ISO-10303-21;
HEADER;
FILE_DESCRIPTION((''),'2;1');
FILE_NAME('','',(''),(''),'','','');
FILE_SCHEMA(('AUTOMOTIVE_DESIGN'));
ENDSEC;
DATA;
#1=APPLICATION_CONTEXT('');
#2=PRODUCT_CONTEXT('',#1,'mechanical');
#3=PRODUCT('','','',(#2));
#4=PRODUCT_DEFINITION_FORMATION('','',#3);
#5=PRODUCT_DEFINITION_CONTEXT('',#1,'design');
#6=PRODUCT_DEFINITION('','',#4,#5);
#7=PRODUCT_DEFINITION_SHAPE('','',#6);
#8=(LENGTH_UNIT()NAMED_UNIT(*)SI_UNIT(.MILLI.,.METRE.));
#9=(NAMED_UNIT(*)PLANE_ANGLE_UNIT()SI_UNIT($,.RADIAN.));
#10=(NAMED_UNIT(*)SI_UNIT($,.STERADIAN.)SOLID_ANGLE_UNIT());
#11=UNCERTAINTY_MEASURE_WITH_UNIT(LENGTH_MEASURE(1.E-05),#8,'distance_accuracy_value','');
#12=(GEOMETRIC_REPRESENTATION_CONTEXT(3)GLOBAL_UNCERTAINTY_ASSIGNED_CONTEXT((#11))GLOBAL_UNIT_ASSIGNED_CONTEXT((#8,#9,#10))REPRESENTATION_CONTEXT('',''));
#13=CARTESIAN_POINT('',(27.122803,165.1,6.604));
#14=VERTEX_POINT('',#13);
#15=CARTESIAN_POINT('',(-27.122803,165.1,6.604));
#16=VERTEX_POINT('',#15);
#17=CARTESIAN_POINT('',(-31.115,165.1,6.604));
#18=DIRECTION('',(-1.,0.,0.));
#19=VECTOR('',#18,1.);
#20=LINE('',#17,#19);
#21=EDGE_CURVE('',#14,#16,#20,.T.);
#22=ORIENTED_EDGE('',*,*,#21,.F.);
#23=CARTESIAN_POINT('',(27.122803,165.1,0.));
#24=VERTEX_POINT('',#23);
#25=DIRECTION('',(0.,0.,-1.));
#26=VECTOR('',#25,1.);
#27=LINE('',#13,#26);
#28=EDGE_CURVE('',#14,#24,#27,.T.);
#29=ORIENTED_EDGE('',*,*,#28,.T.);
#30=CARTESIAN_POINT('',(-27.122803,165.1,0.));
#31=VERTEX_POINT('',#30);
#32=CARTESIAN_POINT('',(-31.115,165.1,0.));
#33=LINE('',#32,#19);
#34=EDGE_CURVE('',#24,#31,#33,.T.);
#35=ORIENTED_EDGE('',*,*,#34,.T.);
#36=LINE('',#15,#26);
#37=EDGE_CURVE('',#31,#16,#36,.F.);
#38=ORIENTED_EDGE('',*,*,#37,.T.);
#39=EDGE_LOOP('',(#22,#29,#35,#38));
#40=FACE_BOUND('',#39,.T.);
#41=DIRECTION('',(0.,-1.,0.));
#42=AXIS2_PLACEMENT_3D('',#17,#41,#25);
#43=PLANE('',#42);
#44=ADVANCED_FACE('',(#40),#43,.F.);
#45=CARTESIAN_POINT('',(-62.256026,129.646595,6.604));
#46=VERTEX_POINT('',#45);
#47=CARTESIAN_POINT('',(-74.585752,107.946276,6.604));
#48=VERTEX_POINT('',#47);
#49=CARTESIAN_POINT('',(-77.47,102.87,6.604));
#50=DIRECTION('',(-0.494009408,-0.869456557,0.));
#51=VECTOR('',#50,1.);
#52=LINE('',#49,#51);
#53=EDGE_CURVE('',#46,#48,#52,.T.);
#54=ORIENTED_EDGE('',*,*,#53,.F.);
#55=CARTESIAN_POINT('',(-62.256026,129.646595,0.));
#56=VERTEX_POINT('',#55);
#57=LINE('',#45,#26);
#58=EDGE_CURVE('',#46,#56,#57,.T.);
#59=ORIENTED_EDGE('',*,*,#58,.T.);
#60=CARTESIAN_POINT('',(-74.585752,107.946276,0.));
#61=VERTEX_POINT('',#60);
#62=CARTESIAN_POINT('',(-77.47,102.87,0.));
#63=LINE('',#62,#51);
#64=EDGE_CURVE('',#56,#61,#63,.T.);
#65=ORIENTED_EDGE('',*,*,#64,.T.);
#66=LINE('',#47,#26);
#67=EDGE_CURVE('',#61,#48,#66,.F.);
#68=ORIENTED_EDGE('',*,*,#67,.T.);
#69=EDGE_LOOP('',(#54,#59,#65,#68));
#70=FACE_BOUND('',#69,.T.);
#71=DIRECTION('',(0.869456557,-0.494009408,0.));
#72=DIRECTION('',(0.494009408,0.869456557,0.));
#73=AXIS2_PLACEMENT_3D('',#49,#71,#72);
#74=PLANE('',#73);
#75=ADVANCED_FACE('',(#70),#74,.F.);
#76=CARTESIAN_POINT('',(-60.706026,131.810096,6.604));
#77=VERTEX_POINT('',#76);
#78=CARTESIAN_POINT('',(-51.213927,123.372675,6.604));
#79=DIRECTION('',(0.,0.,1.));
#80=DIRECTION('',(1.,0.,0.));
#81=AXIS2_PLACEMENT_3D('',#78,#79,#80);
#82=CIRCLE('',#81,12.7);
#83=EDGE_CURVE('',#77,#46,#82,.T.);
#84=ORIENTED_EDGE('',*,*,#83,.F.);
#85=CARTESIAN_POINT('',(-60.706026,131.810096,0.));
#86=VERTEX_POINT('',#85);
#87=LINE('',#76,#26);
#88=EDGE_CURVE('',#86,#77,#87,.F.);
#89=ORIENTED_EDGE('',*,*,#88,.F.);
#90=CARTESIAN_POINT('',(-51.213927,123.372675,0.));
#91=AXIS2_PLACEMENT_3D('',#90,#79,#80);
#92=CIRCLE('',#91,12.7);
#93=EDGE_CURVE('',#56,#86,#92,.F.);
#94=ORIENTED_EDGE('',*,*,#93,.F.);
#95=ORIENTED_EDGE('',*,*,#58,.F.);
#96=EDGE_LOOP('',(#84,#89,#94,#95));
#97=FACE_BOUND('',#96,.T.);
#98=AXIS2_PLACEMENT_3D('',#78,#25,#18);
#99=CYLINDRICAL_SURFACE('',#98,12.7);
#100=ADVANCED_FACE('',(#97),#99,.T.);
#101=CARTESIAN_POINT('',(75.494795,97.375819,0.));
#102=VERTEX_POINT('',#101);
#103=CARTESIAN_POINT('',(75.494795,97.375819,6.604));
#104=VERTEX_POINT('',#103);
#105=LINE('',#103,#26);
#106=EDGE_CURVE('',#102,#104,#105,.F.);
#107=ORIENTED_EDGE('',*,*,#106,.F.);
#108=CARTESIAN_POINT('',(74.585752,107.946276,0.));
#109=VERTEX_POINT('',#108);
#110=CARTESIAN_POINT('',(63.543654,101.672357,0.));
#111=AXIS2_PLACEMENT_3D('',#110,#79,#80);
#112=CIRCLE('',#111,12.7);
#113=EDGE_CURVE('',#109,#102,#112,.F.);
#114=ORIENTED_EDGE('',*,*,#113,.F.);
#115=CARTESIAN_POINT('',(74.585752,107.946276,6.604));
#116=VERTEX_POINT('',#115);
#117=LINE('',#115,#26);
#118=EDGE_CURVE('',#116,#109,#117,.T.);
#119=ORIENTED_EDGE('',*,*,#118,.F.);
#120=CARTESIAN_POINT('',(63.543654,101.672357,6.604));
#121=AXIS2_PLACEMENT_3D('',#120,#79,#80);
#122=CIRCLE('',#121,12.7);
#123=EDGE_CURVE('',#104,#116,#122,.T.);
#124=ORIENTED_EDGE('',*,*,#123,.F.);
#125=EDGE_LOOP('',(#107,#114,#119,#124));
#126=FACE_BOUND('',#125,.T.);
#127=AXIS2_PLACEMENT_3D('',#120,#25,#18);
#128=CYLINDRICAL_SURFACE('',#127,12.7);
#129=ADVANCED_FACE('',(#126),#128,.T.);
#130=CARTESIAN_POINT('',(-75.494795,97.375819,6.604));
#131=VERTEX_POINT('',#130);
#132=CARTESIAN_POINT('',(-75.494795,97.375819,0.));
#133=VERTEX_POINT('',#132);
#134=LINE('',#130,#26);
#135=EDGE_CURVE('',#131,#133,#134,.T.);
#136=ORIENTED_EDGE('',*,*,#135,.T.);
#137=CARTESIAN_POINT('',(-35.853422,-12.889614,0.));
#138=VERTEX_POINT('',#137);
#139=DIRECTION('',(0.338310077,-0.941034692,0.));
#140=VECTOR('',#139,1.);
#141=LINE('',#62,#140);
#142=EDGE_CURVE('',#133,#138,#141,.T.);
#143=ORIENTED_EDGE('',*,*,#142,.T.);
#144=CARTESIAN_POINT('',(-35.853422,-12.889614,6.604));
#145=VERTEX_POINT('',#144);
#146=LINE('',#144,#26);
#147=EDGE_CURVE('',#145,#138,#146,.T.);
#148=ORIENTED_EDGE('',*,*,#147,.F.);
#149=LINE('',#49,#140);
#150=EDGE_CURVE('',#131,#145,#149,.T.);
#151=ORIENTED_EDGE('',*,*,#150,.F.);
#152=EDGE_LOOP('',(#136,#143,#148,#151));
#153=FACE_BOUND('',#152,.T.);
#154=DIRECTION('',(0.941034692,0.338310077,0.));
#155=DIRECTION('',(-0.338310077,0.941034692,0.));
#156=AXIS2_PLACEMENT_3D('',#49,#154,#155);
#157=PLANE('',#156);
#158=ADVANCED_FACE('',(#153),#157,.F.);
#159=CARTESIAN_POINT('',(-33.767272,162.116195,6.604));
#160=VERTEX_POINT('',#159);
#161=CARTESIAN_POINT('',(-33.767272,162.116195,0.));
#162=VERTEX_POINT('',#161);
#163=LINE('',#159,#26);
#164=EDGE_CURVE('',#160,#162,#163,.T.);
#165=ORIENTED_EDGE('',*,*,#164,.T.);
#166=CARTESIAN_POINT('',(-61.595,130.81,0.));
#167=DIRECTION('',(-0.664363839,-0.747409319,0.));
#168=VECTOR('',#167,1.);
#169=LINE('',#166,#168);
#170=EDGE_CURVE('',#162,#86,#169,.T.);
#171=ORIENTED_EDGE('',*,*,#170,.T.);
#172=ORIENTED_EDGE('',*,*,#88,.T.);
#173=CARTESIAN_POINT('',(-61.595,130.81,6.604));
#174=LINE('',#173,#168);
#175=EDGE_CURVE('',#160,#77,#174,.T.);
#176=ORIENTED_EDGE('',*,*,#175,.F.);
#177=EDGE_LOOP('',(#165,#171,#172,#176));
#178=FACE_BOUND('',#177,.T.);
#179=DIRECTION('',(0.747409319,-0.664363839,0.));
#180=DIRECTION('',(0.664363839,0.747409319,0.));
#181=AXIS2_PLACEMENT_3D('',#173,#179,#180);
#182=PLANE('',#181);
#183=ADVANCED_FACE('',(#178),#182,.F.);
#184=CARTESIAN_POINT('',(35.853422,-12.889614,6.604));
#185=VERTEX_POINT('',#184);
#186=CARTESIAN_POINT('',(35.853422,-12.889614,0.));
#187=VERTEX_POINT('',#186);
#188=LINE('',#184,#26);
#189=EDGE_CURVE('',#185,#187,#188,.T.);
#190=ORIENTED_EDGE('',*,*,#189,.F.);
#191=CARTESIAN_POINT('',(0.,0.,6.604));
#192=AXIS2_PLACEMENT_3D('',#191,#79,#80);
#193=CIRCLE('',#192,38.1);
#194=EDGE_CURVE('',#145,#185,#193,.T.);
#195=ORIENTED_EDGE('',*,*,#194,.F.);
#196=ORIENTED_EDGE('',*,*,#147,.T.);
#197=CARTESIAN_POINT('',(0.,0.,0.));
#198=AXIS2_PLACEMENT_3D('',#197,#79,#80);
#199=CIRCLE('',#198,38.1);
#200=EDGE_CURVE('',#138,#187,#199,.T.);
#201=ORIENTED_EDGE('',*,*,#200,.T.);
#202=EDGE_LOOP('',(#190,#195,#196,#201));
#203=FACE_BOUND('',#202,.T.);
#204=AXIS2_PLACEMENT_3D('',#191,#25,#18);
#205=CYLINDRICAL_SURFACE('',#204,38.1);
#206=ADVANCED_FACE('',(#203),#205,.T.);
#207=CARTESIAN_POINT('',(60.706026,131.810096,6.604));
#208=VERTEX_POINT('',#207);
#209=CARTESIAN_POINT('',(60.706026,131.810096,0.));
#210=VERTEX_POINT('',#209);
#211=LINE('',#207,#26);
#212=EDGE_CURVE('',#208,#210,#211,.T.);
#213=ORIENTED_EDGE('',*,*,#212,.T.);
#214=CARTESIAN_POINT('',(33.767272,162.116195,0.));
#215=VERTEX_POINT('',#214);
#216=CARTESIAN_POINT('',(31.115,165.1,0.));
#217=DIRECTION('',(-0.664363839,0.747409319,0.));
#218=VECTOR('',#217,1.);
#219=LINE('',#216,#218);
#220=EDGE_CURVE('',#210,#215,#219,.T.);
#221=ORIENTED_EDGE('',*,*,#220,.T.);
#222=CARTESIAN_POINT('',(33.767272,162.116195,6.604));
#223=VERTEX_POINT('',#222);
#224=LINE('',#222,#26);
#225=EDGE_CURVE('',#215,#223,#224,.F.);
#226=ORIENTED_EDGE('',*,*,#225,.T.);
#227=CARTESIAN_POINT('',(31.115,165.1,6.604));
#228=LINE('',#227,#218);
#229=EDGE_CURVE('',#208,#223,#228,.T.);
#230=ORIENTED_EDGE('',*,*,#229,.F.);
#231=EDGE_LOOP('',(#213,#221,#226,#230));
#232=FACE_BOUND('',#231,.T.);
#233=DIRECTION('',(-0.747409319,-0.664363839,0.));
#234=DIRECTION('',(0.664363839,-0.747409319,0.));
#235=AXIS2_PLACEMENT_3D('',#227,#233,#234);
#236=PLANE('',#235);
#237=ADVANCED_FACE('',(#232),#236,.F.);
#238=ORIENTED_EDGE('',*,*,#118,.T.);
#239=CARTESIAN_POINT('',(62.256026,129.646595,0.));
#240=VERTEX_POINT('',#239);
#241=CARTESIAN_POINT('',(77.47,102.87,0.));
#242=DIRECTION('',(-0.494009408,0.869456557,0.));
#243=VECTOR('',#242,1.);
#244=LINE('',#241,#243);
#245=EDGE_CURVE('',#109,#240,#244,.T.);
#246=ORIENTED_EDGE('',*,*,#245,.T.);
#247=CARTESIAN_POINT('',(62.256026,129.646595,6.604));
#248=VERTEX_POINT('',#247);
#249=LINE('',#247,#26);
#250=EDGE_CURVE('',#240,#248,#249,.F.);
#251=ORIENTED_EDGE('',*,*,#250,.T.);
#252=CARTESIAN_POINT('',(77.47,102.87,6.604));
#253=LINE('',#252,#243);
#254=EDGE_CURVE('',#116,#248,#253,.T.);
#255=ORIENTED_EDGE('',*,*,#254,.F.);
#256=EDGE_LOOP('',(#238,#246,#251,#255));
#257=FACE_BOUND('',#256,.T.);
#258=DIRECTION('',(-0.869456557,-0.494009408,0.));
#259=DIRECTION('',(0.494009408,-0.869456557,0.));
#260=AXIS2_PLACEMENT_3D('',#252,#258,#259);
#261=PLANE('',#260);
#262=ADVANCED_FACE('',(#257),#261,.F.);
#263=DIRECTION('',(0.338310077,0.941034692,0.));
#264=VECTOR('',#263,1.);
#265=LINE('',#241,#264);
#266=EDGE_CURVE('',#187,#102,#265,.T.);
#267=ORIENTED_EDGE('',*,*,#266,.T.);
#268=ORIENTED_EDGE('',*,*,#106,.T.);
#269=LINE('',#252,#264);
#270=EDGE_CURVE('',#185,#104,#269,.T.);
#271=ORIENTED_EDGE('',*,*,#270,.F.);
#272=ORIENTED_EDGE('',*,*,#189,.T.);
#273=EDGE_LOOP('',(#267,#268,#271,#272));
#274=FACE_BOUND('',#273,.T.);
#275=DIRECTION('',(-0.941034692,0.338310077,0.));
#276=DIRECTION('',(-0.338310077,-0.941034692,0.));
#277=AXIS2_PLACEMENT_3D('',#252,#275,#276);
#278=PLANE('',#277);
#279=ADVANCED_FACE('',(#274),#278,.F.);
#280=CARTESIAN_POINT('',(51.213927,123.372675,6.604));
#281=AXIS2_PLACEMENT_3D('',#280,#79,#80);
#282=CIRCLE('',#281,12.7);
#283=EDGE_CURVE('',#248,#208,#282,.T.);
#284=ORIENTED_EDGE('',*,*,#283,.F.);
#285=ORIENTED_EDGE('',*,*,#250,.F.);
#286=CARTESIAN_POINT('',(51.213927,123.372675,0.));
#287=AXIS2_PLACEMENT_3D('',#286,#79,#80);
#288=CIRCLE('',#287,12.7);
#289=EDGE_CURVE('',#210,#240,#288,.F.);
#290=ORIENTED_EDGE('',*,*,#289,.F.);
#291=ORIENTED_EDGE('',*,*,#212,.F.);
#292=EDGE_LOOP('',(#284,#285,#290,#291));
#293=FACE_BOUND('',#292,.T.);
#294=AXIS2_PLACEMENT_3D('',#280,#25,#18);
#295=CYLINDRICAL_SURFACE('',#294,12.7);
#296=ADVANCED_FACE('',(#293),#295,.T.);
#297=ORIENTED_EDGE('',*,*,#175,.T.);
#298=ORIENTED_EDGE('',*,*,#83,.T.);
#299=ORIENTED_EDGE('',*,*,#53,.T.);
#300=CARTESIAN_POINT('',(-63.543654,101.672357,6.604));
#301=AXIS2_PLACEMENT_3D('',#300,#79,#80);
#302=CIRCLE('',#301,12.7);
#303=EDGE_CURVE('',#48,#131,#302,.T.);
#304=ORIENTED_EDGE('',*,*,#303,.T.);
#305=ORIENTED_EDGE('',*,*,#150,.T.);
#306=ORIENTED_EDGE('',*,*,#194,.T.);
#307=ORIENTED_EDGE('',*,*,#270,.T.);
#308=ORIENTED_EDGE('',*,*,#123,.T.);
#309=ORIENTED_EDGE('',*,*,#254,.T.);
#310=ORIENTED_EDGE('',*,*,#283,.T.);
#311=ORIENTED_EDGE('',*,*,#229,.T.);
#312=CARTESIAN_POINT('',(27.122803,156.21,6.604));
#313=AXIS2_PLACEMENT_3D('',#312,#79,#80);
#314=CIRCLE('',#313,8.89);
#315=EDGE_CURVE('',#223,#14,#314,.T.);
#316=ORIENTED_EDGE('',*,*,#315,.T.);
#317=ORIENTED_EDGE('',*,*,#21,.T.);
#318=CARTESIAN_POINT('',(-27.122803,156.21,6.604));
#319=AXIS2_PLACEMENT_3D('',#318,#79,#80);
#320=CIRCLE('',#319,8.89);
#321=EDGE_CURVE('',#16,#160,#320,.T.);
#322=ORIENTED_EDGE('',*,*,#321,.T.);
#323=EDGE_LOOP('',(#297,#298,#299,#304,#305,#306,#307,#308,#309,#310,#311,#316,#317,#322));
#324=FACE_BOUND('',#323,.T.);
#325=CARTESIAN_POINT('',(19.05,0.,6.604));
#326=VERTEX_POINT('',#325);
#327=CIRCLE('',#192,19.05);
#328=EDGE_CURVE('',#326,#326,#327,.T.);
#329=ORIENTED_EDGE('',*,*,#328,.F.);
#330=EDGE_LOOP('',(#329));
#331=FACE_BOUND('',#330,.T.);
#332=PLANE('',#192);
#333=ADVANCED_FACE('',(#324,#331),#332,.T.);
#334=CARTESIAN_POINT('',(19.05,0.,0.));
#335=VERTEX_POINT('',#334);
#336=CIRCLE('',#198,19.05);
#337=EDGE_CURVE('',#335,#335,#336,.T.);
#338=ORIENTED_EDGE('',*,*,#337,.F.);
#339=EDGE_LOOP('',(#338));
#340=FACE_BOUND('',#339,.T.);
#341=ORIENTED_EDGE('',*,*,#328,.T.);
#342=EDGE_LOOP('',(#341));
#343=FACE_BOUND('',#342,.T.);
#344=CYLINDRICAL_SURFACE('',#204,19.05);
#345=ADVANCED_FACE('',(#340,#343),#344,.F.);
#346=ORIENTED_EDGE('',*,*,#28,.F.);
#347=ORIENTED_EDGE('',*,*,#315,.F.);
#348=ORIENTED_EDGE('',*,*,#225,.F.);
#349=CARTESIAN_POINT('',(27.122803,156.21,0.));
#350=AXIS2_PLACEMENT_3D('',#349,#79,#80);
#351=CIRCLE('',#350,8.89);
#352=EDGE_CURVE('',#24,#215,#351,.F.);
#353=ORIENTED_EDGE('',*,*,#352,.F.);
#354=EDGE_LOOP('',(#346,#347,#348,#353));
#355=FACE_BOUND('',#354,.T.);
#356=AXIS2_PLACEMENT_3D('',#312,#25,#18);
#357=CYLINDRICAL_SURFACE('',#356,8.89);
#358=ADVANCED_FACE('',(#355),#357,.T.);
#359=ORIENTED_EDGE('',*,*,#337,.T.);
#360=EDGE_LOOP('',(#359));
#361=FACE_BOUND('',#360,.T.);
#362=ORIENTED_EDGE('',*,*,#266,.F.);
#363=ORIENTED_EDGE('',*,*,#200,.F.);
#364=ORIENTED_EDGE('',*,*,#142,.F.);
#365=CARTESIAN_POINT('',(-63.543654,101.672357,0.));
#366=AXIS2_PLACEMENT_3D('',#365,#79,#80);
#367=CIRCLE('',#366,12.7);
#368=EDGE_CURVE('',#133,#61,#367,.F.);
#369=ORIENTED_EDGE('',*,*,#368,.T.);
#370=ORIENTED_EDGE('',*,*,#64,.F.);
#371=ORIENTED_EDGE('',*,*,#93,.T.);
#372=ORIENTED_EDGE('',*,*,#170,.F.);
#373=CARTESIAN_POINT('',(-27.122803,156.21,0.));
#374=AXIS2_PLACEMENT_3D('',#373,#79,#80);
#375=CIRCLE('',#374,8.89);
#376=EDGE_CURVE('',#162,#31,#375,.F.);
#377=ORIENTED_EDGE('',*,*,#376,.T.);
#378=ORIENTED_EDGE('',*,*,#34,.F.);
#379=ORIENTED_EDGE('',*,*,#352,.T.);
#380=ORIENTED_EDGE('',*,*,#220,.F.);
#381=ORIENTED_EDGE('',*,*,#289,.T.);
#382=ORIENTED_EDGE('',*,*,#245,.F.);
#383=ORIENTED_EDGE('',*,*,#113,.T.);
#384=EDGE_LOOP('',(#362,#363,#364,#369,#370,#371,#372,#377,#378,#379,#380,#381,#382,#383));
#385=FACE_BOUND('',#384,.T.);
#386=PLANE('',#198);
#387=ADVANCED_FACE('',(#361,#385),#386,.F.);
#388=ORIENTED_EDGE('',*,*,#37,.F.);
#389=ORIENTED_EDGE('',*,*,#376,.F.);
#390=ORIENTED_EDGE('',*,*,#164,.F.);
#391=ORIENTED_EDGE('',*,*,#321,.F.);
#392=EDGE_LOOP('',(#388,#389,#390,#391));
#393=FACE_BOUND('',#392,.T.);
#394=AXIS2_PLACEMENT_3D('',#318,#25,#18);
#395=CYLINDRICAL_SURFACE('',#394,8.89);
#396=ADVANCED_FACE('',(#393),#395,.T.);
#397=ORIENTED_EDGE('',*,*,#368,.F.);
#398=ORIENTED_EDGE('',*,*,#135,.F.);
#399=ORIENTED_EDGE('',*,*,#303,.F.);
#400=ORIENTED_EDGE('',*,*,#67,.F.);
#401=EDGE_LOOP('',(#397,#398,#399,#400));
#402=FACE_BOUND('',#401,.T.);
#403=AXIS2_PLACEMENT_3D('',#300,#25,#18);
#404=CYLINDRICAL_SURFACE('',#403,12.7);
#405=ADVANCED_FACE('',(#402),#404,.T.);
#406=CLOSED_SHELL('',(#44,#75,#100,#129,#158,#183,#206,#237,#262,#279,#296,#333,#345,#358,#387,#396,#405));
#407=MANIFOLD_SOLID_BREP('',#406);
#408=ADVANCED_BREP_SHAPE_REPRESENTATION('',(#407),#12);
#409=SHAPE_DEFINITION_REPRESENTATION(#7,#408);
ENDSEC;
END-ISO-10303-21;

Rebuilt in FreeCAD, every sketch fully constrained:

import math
import FreeCAD as App
import Part
import Sketcher
Q = App.Units.Quantity


def edges_at(feature, points):
    """Names of the edges that pass closest to the given points."""
    edges = feature.Shape.Edges
    near = lambda p: min(range(len(edges)), key=lambda i: edges[i].distToShape(Part.Vertex(*p))[0])
    return sorted({f"Edge{near(p) + 1}" for p in points})

doc = App.newDocument("Part")
body = doc.addObject("PartDesign::Body", "Body")

# Sketch on XY plane
sketch1 = body.newObject("Sketcher::SketchObject", "Sketch")
sketch1.AttachmentSupport = (doc.getObject("XY_Plane"), [""])
sketch1.MapMode = "FlatFace"
sketch1.addGeometry(Part.LineSegment(App.Vector(31.115, 165.1, 0), App.Vector(-31.115, 165.1, 0)), False)
sketch1.addGeometry(Part.LineSegment(App.Vector(-31.115, 165.1, 0), App.Vector(-61.595, 130.81, 0)), False)
sketch1.addGeometry(Part.LineSegment(App.Vector(-61.595, 130.81, 0), App.Vector(-77.47, 102.87, 0)), False)
sketch1.addGeometry(Part.LineSegment(App.Vector(-77.47, 102.87, 0), App.Vector(-35.853422, -12.889614, 0)), False)
sketch1.addGeometry(Part.ArcOfCircle(Part.Circle(App.Vector(0, 0, 0), App.Vector(0, 0, 1), 38.1), math.radians(-160.226052), math.radians(-19.773948)), False)
sketch1.addGeometry(Part.LineSegment(App.Vector(35.853422, -12.889614, 0), App.Vector(77.47, 102.87, 0)), False)
sketch1.addGeometry(Part.LineSegment(App.Vector(77.47, 102.87, 0), App.Vector(61.595, 130.81, 0)), False)
sketch1.addGeometry(Part.LineSegment(App.Vector(61.595, 130.81, 0), App.Vector(31.115, 165.1, 0)), False)
sketch1.addGeometry(Part.Circle(App.Vector(0, 0, 0), App.Vector(0, 0, 1), 19.05), False)
sketch1.addConstraint(Sketcher.Constraint("Coincident", 0, 2, 1, 1))
sketch1.addConstraint(Sketcher.Constraint("Coincident", 1, 2, 2, 1))
sketch1.addConstraint(Sketcher.Constraint("Coincident", 2, 2, 3, 1))
sketch1.addConstraint(Sketcher.Constraint("Tangent", 3, 2, 4, 1))
sketch1.addConstraint(Sketcher.Constraint("Tangent", 4, 2, 5, 1))
sketch1.addConstraint(Sketcher.Constraint("Coincident", 5, 2, 6, 1))
sketch1.addConstraint(Sketcher.Constraint("Coincident", 6, 2, 7, 1))
sketch1.addConstraint(Sketcher.Constraint("Coincident", 7, 2, 0, 1))
sketch1.addConstraint(Sketcher.Constraint("Horizontal", 0))
sketch1.addConstraint(Sketcher.Constraint("Coincident", 4, 3, -1, 1))
sketch1.addConstraint(Sketcher.Constraint("Coincident", 8, 3, -1, 1))
sketch1.addConstraint(Sketcher.Constraint("Symmetric", 2, 2, 5, 2, -2))
sketch1.addConstraint(Sketcher.Constraint("Symmetric", 1, 2, 6, 2, -2))
sketch1.addConstraint(Sketcher.Constraint("Equal", 1, 7))
sketch1.addConstraint(Sketcher.Constraint("Diameter", 8, Q("1.5 in")))
sketch1.addConstraint(Sketcher.Constraint("Radius", 4, Q("1.5 in")))
sketch1.addConstraint(Sketcher.Constraint("DistanceX", 0, 2, 0, 1, Q("2.45 in")))
sketch1.addConstraint(Sketcher.Constraint("DistanceY", -1, 1, 0, 2, Q("6.5 in")))
sketch1.addConstraint(Sketcher.Constraint("DistanceX", 1, 2, 0, 2, Q("1.2 in")))
sketch1.addConstraint(Sketcher.Constraint("DistanceY", 2, 2, 1, 2, Q("1.1 in")))
sketch1.addConstraint(Sketcher.Constraint("DistanceY", -1, 1, 1, 2, Q("5.15 in")))
sketch1.addConstraint(Sketcher.Constraint("DistanceX", 2, 2, -1, 1, Q("3.05 in")))
pad1 = body.newObject("PartDesign::Pad", "Pad")
pad1.Profile = sketch1
pad1.Length = Q("0.26 in")
doc.recompute()

fillet = body.newObject("PartDesign::Fillet", "Fillet")
fillet.Base = (pad1, edges_at(pad1, [
    (61.595, 130.81, 3.302),
    (77.47, 102.87, 3.302),
    (-77.47, 102.87, 3.302),
    (-61.595, 130.81, 3.302),
]))
fillet.Radius = Q("0.5 in")
doc.recompute()

fillet2 = body.newObject("PartDesign::Fillet", "Fillet001")
fillet2.Base = (fillet, edges_at(fillet, [(-31.115, 165.1, 3.302), (31.115, 165.1, 3.302)]))
fillet2.Radius = Q("0.35 in")

doc.recompute()
